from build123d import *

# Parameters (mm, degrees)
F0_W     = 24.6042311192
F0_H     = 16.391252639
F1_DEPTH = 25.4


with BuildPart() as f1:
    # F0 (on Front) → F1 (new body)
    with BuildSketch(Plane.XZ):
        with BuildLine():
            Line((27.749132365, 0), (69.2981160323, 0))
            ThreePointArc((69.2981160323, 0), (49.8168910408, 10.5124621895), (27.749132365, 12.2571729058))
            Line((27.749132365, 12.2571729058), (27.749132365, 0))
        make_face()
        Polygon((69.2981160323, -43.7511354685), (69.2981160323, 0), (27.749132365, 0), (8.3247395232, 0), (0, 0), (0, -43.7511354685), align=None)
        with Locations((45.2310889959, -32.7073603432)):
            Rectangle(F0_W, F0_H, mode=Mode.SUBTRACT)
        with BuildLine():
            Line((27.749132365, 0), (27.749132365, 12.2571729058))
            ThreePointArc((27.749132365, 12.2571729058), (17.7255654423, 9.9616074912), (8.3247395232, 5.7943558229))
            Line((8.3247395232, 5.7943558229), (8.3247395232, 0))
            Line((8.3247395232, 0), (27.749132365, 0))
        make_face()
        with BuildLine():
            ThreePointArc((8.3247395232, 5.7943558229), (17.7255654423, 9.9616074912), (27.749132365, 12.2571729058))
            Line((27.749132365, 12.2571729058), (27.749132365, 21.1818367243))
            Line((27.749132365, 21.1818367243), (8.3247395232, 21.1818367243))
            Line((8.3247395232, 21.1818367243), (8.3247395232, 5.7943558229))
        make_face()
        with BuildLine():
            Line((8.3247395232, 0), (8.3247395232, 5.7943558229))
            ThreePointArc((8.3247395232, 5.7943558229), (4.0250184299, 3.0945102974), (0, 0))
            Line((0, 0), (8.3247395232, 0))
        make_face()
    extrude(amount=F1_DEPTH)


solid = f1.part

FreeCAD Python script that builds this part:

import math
import FreeCAD as App
import Part
import Sketcher

V = App.Vector
Q = App.Units.Quantity


def add_polygon(sketch, points):
    """Adds a closed chain of lines whose ends are joined by coincident constraints."""
    first, n = sketch.GeometryCount, len(points)
    for a, b in zip(points, points[1:] + points[:1]):
        sketch.addGeometry(Part.LineSegment(App.Vector(*a, 0), App.Vector(*b, 0)), False)
    for i in range(n):
        sketch.addConstraint(Sketcher.Constraint("Coincident", first + i, 2, first + (i + 1) % n, 1))

doc = App.newDocument("Part")
body = doc.addObject("PartDesign::Body", "Body")

sketch1 = body.newObject("Sketcher::SketchObject", "Sketch")
sketch1.AttachmentSupport = (doc.getObject("XZ_Plane"), [""])
sketch1.MapMode = "FlatFace"
sketch1.addGeometry(Part.ArcOfCircle(Part.Circle(V(34.649058, -40.902987, 0), V(0, 0, 1), 53.606077), math.radians(49.731952), math.radians(97.395364)), False)
sketch1.addGeometry(Part.LineSegment(V(27.749132, 12.257173, 0), V(27.749132, 21.181837, 0)), False)
sketch1.addGeometry(Part.LineSegment(V(27.749132, 21.181837, 0), V(8.32474, 21.181837, 0)), False)
sketch1.addGeometry(Part.LineSegment(V(8.32474, 21.181837, 0), V(8.32474, 5.794356, 0)), False)
sketch1.addGeometry(Part.ArcOfCircle(Part.Circle(V(34.649058, -40.902987, 0), V(0, 0, 1), 53.606077), math.radians(119.410912), math.radians(130.268048)), False)
sketch1.addGeometry(Part.LineSegment(V(0, 0, 0), V(0, -43.751135, 0)), False)
sketch1.addGeometry(Part.LineSegment(V(0, -43.751135, 0), V(69.298116, -43.751135, 0)), False)
sketch1.addGeometry(Part.LineSegment(V(69.298116, -43.751135, 0), V(69.298116, 0, 0)), False)
add_polygon(sketch1, [(57.533205, -40.902987), (32.928973, -40.902987), (32.928973, -24.511734), (57.533205, -24.511734)])
sketch1.addConstraint([
    Sketcher.Constraint("Coincident", 0, 2, 1, 1),
    Sketcher.Constraint("Coincident", 1, 2, 2, 1),
    Sketcher.Constraint("Coincident", 2, 2, 3, 1),
    Sketcher.Constraint("Coincident", 3, 2, 4, 1),
    Sketcher.Constraint("Coincident", 4, 2, 5, 1),
    Sketcher.Constraint("Coincident", 5, 2, 6, 1),
    Sketcher.Constraint("Coincident", 6, 2, 7, 1),
    Sketcher.Constraint("Coincident", 7, 2, 0, 1),
    Sketcher.Constraint("Vertical", 1),
    Sketcher.Constraint("Horizontal", 2),
    Sketcher.Constraint("Vertical", 3),
    Sketcher.Constraint("Vertical", 5),
    Sketcher.Constraint("Horizontal", 6),
    Sketcher.Constraint("Vertical", 7),
    Sketcher.Constraint("Horizontal", 8),
    Sketcher.Constraint("Vertical", 9),
    Sketcher.Constraint("Horizontal", 10),
    Sketcher.Constraint("Vertical", 11),
    Sketcher.Constraint("Coincident", 4, 2, -1, 1),
    Sketcher.Constraint("Coincident", 4, 3, 0, 3),
    Sketcher.Constraint("Equal", 0, 4),
    Sketcher.Constraint("PointOnObject", 7, 2, -1),
    Sketcher.Constraint("Horizontal", 4, 3, 8, 2),
    Sketcher.Constraint("Radius", 0, Q("53.606077 mm")),
    Sketcher.Constraint("DistanceX", 8, 2, 8, 1, Q("24.604231 mm")),
    Sketcher.Constraint("DistanceY", 3, 2, 3, 1, Q("15.387481 mm")),
    Sketcher.Constraint("DistanceY", 5, 2, 9, 2, Q("19.239401 mm")),
    Sketcher.Constraint("DistanceX", 2, 2, 2, 1, Q("19.424393 mm")),
    Sketcher.Constraint("DistanceX", 6, 1, 6, 2, Q("69.298116 mm")),
    Sketcher.Constraint("DistanceY", 1, 1, 1, 2, Q("8.924664 mm")),
    Sketcher.Constraint("DistanceY", 5, 2, 5, 1, Q("43.751135 mm")),
    Sketcher.Constraint("DistanceX", 0, 2, 9, 2, Q("5.179841 mm")),
])
pad1 = body.newObject("PartDesign::Pad", "Pad")
pad1.Profile = sketch1
pad1.Length = Q("1 in")

doc.recompute()
